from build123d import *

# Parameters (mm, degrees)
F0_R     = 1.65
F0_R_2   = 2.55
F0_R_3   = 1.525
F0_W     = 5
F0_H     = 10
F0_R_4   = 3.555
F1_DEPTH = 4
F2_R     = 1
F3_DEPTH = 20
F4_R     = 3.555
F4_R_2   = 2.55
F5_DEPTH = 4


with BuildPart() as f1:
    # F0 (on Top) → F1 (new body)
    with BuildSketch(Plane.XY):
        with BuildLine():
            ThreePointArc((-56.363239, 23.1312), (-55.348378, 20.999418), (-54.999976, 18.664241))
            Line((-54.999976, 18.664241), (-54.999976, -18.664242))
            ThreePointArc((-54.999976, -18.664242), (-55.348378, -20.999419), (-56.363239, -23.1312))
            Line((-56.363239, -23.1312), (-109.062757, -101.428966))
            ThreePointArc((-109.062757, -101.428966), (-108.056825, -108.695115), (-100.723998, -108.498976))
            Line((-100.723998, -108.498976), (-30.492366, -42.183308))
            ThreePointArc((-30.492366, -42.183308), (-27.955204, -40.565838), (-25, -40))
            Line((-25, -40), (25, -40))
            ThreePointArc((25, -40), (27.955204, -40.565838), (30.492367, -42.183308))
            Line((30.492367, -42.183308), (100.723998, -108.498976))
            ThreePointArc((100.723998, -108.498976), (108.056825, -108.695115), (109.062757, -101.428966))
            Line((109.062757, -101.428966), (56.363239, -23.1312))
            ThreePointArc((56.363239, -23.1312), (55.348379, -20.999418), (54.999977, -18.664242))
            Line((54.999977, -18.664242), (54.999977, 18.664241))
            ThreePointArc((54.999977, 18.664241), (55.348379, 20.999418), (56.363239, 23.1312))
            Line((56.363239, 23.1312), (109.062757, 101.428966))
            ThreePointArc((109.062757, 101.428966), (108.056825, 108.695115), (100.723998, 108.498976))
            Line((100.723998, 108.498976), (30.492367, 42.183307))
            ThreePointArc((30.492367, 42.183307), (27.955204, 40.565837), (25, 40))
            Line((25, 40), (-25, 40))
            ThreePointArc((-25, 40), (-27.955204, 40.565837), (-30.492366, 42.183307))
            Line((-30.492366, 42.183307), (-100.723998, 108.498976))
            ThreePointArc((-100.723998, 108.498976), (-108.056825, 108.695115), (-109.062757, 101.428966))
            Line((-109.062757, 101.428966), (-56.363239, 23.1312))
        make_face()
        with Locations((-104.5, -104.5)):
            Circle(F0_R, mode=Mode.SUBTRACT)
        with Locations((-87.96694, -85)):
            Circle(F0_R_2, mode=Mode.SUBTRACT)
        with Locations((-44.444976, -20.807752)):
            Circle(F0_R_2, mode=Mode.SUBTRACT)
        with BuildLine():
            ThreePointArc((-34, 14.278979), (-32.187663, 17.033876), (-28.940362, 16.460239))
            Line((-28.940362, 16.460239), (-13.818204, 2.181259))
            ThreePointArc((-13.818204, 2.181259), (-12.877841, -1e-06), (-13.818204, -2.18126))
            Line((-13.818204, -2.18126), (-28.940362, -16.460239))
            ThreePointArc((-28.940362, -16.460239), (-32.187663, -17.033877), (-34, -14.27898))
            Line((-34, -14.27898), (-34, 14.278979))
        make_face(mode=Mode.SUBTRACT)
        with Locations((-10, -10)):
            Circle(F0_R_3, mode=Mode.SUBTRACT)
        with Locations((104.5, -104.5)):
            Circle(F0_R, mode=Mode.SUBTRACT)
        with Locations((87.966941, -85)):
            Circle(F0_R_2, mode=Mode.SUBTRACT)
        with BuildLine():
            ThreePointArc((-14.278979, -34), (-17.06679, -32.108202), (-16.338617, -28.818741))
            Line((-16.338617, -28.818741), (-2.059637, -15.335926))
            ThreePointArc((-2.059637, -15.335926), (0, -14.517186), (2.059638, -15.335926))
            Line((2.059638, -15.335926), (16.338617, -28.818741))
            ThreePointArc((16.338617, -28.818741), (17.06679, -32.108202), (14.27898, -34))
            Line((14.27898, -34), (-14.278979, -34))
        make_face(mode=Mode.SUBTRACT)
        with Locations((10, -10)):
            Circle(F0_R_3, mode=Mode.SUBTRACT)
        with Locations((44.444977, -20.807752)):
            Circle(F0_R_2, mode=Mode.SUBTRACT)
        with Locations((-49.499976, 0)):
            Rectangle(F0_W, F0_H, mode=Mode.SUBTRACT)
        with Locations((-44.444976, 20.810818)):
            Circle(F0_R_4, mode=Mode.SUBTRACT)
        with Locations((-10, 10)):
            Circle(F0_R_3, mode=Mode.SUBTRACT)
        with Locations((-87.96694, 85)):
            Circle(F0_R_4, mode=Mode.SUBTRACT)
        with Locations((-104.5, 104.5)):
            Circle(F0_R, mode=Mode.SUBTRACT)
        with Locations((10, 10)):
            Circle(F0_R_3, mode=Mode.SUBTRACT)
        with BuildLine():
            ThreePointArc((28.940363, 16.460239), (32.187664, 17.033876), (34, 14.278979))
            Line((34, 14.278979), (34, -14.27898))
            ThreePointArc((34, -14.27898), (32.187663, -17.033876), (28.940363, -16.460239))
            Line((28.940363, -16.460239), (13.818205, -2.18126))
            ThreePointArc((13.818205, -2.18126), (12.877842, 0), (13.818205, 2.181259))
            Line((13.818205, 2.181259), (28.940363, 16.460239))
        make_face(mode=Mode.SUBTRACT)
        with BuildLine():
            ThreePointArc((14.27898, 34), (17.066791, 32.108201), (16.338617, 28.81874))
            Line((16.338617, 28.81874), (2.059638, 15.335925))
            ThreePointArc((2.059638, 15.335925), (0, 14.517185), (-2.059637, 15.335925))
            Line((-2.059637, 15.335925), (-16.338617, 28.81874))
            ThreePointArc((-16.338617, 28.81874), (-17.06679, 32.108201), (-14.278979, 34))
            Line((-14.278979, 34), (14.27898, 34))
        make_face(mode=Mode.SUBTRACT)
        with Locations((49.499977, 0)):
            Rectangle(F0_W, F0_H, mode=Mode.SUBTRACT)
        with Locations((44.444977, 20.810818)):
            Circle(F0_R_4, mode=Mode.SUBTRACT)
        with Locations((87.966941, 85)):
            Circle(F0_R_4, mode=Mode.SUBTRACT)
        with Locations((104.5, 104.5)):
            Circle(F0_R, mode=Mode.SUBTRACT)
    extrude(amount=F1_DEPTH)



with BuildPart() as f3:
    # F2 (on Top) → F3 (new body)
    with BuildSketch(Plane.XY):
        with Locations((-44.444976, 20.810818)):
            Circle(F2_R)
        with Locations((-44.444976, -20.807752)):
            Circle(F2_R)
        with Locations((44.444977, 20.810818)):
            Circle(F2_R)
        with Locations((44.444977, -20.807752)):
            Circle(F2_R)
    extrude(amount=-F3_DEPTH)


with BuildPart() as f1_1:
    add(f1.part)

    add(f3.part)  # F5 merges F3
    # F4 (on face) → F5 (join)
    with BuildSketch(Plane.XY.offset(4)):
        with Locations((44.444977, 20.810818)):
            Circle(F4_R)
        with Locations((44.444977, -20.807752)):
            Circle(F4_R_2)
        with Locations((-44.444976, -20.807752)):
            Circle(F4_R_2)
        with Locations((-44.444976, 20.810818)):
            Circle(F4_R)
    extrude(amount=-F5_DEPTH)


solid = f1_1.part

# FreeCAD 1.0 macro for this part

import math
import FreeCAD as App
import Part
import Sketcher
Q = App.Units.Quantity


def add_polygon(sketch, points):
    """Adds a closed chain of lines whose ends are joined by coincident constraints."""
    first, n = sketch.GeometryCount, len(points)
    for a, b in zip(points, points[1:] + points[:1]):
        sketch.addGeometry(Part.LineSegment(App.Vector(*a, 0), App.Vector(*b, 0)), False)
    for i in range(n):
        sketch.addConstraint(Sketcher.Constraint("Coincident", first + i, 2, first + (i + 1) % n, 1))

doc = App.newDocument("Part")
body = doc.addObject("PartDesign::Body", "Body")

sketch1 = body.newObject("Sketcher::SketchObject", "Sketch")
sketch1.AttachmentSupport = (doc.getObject("XY_Plane"), [""])
sketch1.MapMode = "FlatFace"
sketch1.addGeometry(Part.ArcOfCircle(Part.Circle(App.Vector(-62.999972, 18.664242, 0), App.Vector(0, 0, 1), 7.999996), math.radians(-0.00001), math.radians(33.943147)), False)
sketch1.addGeometry(Part.LineSegment(App.Vector(-54.999976, 18.664241, 0), App.Vector(-54.999976, -18.664242, 0)), False)
sketch1.addGeometry(Part.ArcOfCircle(Part.Circle(App.Vector(-62.999965, -18.664244, 0), App.Vector(0, 0, 1), 7.999989), math.radians(-33.943161), math.radians(0.000017)), False)
sketch1.addGeometry(Part.LineSegment(App.Vector(-56.363239, -23.1312, 0), App.Vector(-109.062757, -101.428966, 0)), False)
sketch1.addGeometry(Part.ArcOfCircle(Part.Circle(App.Vector(-104.5, -104.499999, 0), App.Vector(0, 0, 1), 5.5), math.radians(146.056873), math.radians(313.357291)), False)
sketch1.addGeometry(Part.LineSegment(App.Vector(-100.723998, -108.498976, 0), App.Vector(-30.492366, -42.183308, 0)), False)
sketch1.addGeometry(Part.ArcOfCircle(Part.Circle(App.Vector(-24.999999, -47.999999, 0), App.Vector(0, 0, 1), 7.999999), math.radians(90.000005), math.radians(133.357304)), False)
sketch1.addGeometry(Part.LineSegment(App.Vector(-25, -40, 0), App.Vector(25, -40, 0)), False)
sketch1.addGeometry(Part.ArcOfCircle(Part.Circle(App.Vector(24.999998, -48.000004, 0), App.Vector(0, 0, 1), 8.000004), math.radians(46.64271), math.radians(89.999988)), False)
sketch1.addGeometry(Part.LineSegment(App.Vector(30.492367, -42.183308, 0), App.Vector(100.723998, -108.498976, 0)), False)
sketch1.addGeometry(Part.ArcOfCircle(Part.Circle(App.Vector(104.5, -104.499999, 0), App.Vector(0, 0, 1), 5.5), math.radians(-133.357291), math.radians(33.943127)), False)
sketch1.addGeometry(Part.LineSegment(App.Vector(109.062757, -101.428966, 0), App.Vector(56.363239, -23.1312, 0)), False)
sketch1.addGeometry(Part.ArcOfCircle(Part.Circle(App.Vector(62.999982, -18.664241, 0), App.Vector(0, 0, 1), 8.000005), math.radians(-179.999993), math.radians(-146.056886)), False)
sketch1.addGeometry(Part.LineSegment(App.Vector(54.999977, -18.664242, 0), App.Vector(54.999977, 18.664241, 0)), False)
sketch1.addGeometry(Part.ArcOfCircle(Part.Circle(App.Vector(62.999982, 18.664241, 0), App.Vector(0, 0, 1), 8.000005), math.radians(146.056886), math.radians(180)), False)
sketch1.addGeometry(Part.LineSegment(App.Vector(56.363239, 23.1312, 0), App.Vector(109.062757, 101.428966, 0)), False)
sketch1.addGeometry(Part.ArcOfCircle(Part.Circle(App.Vector(104.5, 104.499999, 0), App.Vector(0, 0, 1), 5.5), math.radians(-33.943127), math.radians(133.357291)), False)
sketch1.addGeometry(Part.LineSegment(App.Vector(100.723998, 108.498976, 0), App.Vector(30.492367, 42.183307, 0)), False)
sketch1.addGeometry(Part.ArcOfCircle(Part.Circle(App.Vector(25.000002, 47.999997, 0), App.Vector(0, 0, 1), 7.999997), math.radians(-90.000016), math.radians(-46.642701)), False)
sketch1.addGeometry(Part.LineSegment(App.Vector(25, 40, 0), App.Vector(-25, 40, 0)), False)
sketch1.addGeometry(Part.ArcOfCircle(Part.Circle(App.Vector(-25.000003, 47.999992, 0), App.Vector(0, 0, 1), 7.999992), math.radians(-133.357313), math.radians(-89.999977)), False)
sketch1.addGeometry(Part.LineSegment(App.Vector(-30.492366, 42.183307, 0), App.Vector(-100.723998, 108.498976, 0)), False)
sketch1.addGeometry(Part.ArcOfCircle(Part.Circle(App.Vector(-104.5, 104.499999, 0), App.Vector(0, 0, 1), 5.5), math.radians(46.642709), math.radians(213.943127)), False)
sketch1.addGeometry(Part.LineSegment(App.Vector(-109.062757, 101.428966, 0), App.Vector(-56.363239, 23.1312, 0)), False)
sketch1.addGeometry(Part.Circle(App.Vector(-104.5, -104.5, 0), App.Vector(0, 0, 1), 1.65), False)
sketch1.addGeometry(Part.Circle(App.Vector(-87.96694, -85, 0), App.Vector(0, 0, 1), 2.55), False)
sketch1.addGeometry(Part.Circle(App.Vector(-44.444976, -20.807752, 0), App.Vector(0, 0, 1), 2.55), False)
sketch1.addGeometry(Part.LineSegment(App.Vector(-34, -14.27898, 0), App.Vector(-34, 14.278979, 0)), False)
sketch1.addGeometry(Part.ArcOfCircle(Part.Circle(App.Vector(-31, 14.278979, 0), App.Vector(0, 0, 1), 3), math.radians(46.642707), math.radians(179.999998)), False)
sketch1.addGeometry(Part.LineSegment(App.Vector(-28.940362, 16.460239, 0), App.Vector(-13.818204, 2.181259, 0)), False)
sketch1.addGeometry(Part.ArcOfCircle(Part.Circle(App.Vector(-15.87784, 0, 0), App.Vector(0, 0, 1), 2.999999), math.radians(-46.642724), math.radians(46.642724)), False)
sketch1.addGeometry(Part.LineSegment(App.Vector(-13.818204, -2.18126, 0), App.Vector(-28.940362, -16.460239, 0)), False)
sketch1.addGeometry(Part.ArcOfCircle(Part.Circle(App.Vector(-31, -14.27898, 0), App.Vector(0, 0, 1), 3), math.radians(179.999995), math.radians(313.35732)), False)
sketch1.addGeometry(Part.Circle(App.Vector(-10, -10, 0), App.Vector(0, 0, 1), 1.525), False)
sketch1.addGeometry(Part.Circle(App.Vector(104.5, -104.5, 0), App.Vector(0, 0, 1), 1.65), False)
sketch1.addGeometry(Part.Circle(App.Vector(87.966941, -85, 0), App.Vector(0, 0, 1), 2.55), False)
sketch1.addGeometry(Part.LineSegment(App.Vector(14.27898, -34, 0), App.Vector(-14.278979, -34, 0)), False)
sketch1.addGeometry(Part.ArcOfCircle(Part.Circle(App.Vector(-14.278979, -31, 0), App.Vector(0, 0, 1), 3), math.radians(133.357304), math.radians(270.000009)), False)
sketch1.addGeometry(Part.LineSegment(App.Vector(-16.338617, -28.818741, 0), App.Vector(-2.059637, -15.335926, 0)), False)
sketch1.addGeometry(Part.ArcOfCircle(Part.Circle(App.Vector(0, -17.517187, 0), App.Vector(0, 0, 1), 3.000001), math.radians(46.64272), math.radians(133.35728)), False)
sketch1.addGeometry(Part.LineSegment(App.Vector(2.059638, -15.335926, 0), App.Vector(16.338617, -28.818741, 0)), False)
sketch1.addGeometry(Part.ArcOfCircle(Part.Circle(App.Vector(14.278979, -31, 0), App.Vector(0, 0, 1), 3), math.radians(-89.99999), math.radians(46.642696)), False)
sketch1.addGeometry(Part.Circle(App.Vector(10, -10, 0), App.Vector(0, 0, 1), 1.525), False)
sketch1.addGeometry(Part.Circle(App.Vector(44.444977, -20.807752, 0), App.Vector(0, 0, 1), 2.55), False)
add_polygon(sketch1, [(-46.999976, -5), (-51.999976, -5), (-51.999976, 5), (-46.999976, 5)])
sketch1.addGeometry(Part.Circle(App.Vector(-44.444976, 20.810818, 0), App.Vector(0, 0, 1), 3.555), False)
sketch1.addGeometry(Part.Circle(App.Vector(-10, 10, 0), App.Vector(0, 0, 1), 1.525), False)
sketch1.addGeometry(Part.Circle(App.Vector(-87.96694, 85, 0), App.Vector(0, 0, 1), 3.555), False)
sketch1.addGeometry(Part.Circle(App.Vector(-104.5, 104.5, 0), App.Vector(0, 0, 1), 1.65), False)
sketch1.addGeometry(Part.Circle(App.Vector(10, 10, 0), App.Vector(0, 0, 1), 1.525), False)
sketch1.addGeometry(Part.LineSegment(App.Vector(13.818205, 2.181259, 0), App.Vector(28.940363, 16.460239, 0)), False)
sketch1.addGeometry(Part.ArcOfCircle(Part.Circle(App.Vector(31, 14.27898, 0), App.Vector(0, 0, 1), 3), math.radians(-0.000016), math.radians(133.357304)), False)
sketch1.addGeometry(Part.LineSegment(App.Vector(34, 14.278979, 0), App.Vector(34, -14.27898, 0)), False)
sketch1.addGeometry(Part.ArcOfCircle(Part.Circle(App.Vector(31, -14.278979, 0), App.Vector(0, 0, 1), 3), math.radians(-133.357292), math.radians(-0.000014)), False)
sketch1.addGeometry(Part.LineSegment(App.Vector(28.940363, -16.460239, 0), App.Vector(13.818205, -2.18126, 0)), False)
sketch1.addGeometry(Part.ArcOfCircle(Part.Circle(App.Vector(15.877841, 0, 0), App.Vector(0, 0, 1), 2.999999), math.radians(133.357276), math.radians(226.642724)), False)
sketch1.addGeometry(Part.LineSegment(App.Vector(-14.278979, 34, 0), App.Vector(14.27898, 34, 0)), False)
sketch1.addGeometry(Part.ArcOfCircle(Part.Circle(App.Vector(14.27898, 31, 0), App.Vector(0, 0, 1), 3), math.radians(-46.642712), math.radians(89.999999)), False)
sketch1.addGeometry(Part.LineSegment(App.Vector(16.338617, 28.81874, 0), App.Vector(2.059638, 15.335925, 0)), False)
sketch1.addGeometry(Part.ArcOfCircle(Part.Circle(App.Vector(0, 17.517186, 0), App.Vector(0, 0, 1), 3.000001), math.radians(-133.35728), math.radians(-46.64272)), False)
sketch1.addGeometry(Part.LineSegment(App.Vector(-2.059637, 15.335925, 0), App.Vector(-16.338617, 28.81874, 0)), False)
sketch1.addGeometry(Part.ArcOfCircle(Part.Circle(App.Vector(-14.278979, 30.999999, 0), App.Vector(0, 0, 1), 3.000001), math.radians(90.000008), math.radians(226.642685)), False)
add_polygon(sketch1, [(51.999977, -5), (46.999977, -5), (46.999977, 5), (51.999977, 5)])
sketch1.addGeometry(Part.Circle(App.Vector(44.444977, 20.810818, 0), App.Vector(0, 0, 1), 3.555), False)
sketch1.addGeometry(Part.Circle(App.Vector(87.966941, 85, 0), App.Vector(0, 0, 1), 3.555), False)
sketch1.addGeometry(Part.Circle(App.Vector(104.5, 104.5, 0), App.Vector(0, 0, 1), 1.65), False)
sketch1.addConstraint([
    Sketcher.Constraint("Tangent", 0, 1, 1, 1),
    Sketcher.Constraint("Tangent", 1, 2, 2, 2),
    Sketcher.Constraint("Tangent", 2, 1, 3, 1),
    Sketcher.Constraint("Tangent", 3, 2, 4, 1),
    Sketcher.Constraint("Tangent", 4, 2, 5, 1),
    Sketcher.Constraint("Tangent", 5, 2, 6, 2),
    Sketcher.Constraint("Tangent", 6, 1, 7, 1),
    Sketcher.Constraint("Tangent", 7, 2, 8, 2),
    Sketcher.Constraint("Tangent", 8, 1, 9, 1),
    Sketcher.Constraint("Tangent", 9, 2, 10, 1),
    Sketcher.Constraint("Tangent", 10, 2, 11, 1),
    Sketcher.Constraint("Tangent", 11, 2, 12, 2),
    Sketcher.Constraint("Tangent", 12, 1, 13, 1),
    Sketcher.Constraint("Tangent", 13, 2, 14, 2),
    Sketcher.Constraint("Tangent", 14, 1, 15, 1),
    Sketcher.Constraint("Tangent", 15, 2, 16, 1),
    Sketcher.Constraint("Tangent", 16, 2, 17, 1),
    Sketcher.Constraint("Tangent", 17, 2, 18, 2),
    Sketcher.Constraint("Tangent", 18, 1, 19, 1),
    Sketcher.Constraint("Tangent", 19, 2, 20, 2),
    Sketcher.Constraint("Tangent", 20, 1, 21, 1),
    Sketcher.Constraint("Tangent", 21, 2, 22, 1),
    Sketcher.Constraint("Tangent", 22, 2, 23, 1),
    Sketcher.Constraint("Tangent", 23, 2, 0, 2),
    Sketcher.Constraint("Tangent", 27, 2, 28, 2),
    Sketcher.Constraint("Tangent", 28, 1, 29, 1),
    Sketcher.Constraint("Tangent", 29, 2, 30, 2),
    Sketcher.Constraint("Tangent", 30, 1, 31, 1),
    Sketcher.Constraint("Tangent", 31, 2, 32, 2),
    Sketcher.Constraint("Tangent", 32, 1, 27, 1),
    Sketcher.Constraint("Tangent", 36, 2, 37, 2),
    Sketcher.Constraint("Tangent", 37, 1, 38, 1),
    Sketcher.Constraint("Tangent", 38, 2, 39, 2),
    Sketcher.Constraint("Tangent", 39, 1, 40, 1),
    Sketcher.Constraint("Tangent", 40, 2, 41, 2),
    Sketcher.Constraint("Tangent", 41, 1, 36, 1),
    Sketcher.Constraint("Tangent", 53, 2, 54, 2),
    Sketcher.Constraint("Tangent", 54, 1, 55, 1),
    Sketcher.Constraint("Tangent", 55, 2, 56, 2),
    Sketcher.Constraint("Tangent", 56, 1, 57, 1),
    Sketcher.Constraint("Tangent", 57, 2, 58, 2),
    Sketcher.Constraint("Tangent", 58, 1, 53, 1),
    Sketcher.Constraint("Tangent", 59, 2, 60, 2),
    Sketcher.Constraint("Tangent", 60, 1, 61, 1),
    Sketcher.Constraint("Tangent", 61, 2, 62, 2),
    Sketcher.Constraint("Tangent", 62, 1, 63, 1),
    Sketcher.Constraint("Tangent", 63, 2, 64, 2),
    Sketcher.Constraint("Tangent", 64, 1, 59, 1),
    Sketcher.Constraint("Vertical", 1),
    Sketcher.Constraint("Horizontal", 7),
    Sketcher.Constraint("Vertical", 13),
    Sketcher.Constraint("Horizontal", 19),
    Sketcher.Constraint("Vertical", 27),
    Sketcher.Constraint("Horizontal", 36),
    Sketcher.Constraint("Horizontal", 44),
    Sketcher.Constraint("Vertical", 45),
    Sketcher.Constraint("Horizontal", 46),
    Sketcher.Constraint("Vertical", 47),
    Sketcher.Constraint("Vertical", 55),
    Sketcher.Constraint("Horizontal", 59),
    Sketcher.Constraint("Horizontal", 65),
    Sketcher.Constraint("Vertical", 66),
    Sketcher.Constraint("Horizontal", 67),
    Sketcher.Constraint("Vertical", 68),
    Sketcher.Constraint("Coincident", 24, 3, 4, 3),
    Sketcher.Constraint("Coincident", 34, 3, 10, 3),
    Sketcher.Constraint("Coincident", 51, 3, 22, 3),
    Sketcher.Constraint("Coincident", 71, 3, 16, 3),
    Sketcher.Constraint("Equal", 4, 10),
    Sketcher.Constraint("Equal", 8, 12),
    Sketcher.Constraint("Equal", 12, 14),
    Sketcher.Constraint("Equal", 10, 16),
    Sketcher.Constraint("Equal", 0, 18),
    Sketcher.Constraint("Equal", 16, 22),
    Sketcher.Constraint("Equal", 25, 26),
    Sketcher.Constraint("Equal", 28, 30),
    Sketcher.Constraint("Equal", 30, 32),
    Sketcher.Constraint("Equal", 24, 34),
    Sketcher.Constraint("Equal", 26, 35),
    Sketcher.Constraint("Equal", 32, 37),
    Sketcher.Constraint("Equal", 37, 39),
    Sketcher.Constraint("Equal", 39, 41),
    Sketcher.Constraint("Equal", 33, 42),
    Sketcher.Constraint("Equal", 35, 43),
    Sketcher.Constraint("Equal", 42, 49),
    Sketcher.Constraint("Equal", 48, 50),
    Sketcher.Constraint("Equal", 34, 51),
    Sketcher.Constraint("Equal", 49, 52),
    Sketcher.Constraint("Equal", 41, 54),
    Sketcher.Constraint("Equal", 54, 56),
    Sketcher.Constraint("Equal", 56, 58),
    Sketcher.Constraint("Equal", 58, 60),
    Sketcher.Constraint("Equal", 60, 62),
    Sketcher.Constraint("Equal", 62, 64),
    Sketcher.Constraint("Equal", 50, 69),
    Sketcher.Constraint("Equal", 69, 70),
    Sketcher.Constraint("Equal", 51, 71),
    Sketcher.Constraint("Symmetric", 4, 3, 16, 3, -1, 1),
    Sketcher.Constraint("Symmetric", 6, 3, 18, 3, -1, 1),
    Sketcher.Constraint("Symmetric", 10, 3, 22, 3, -1, 1),
    Sketcher.Constraint("Symmetric", 42, 3, 49, 3, -1, 1),
    Sketcher.Constraint("Symmetric", 35, 3, 50, 3, -1, 1),
    Sketcher.Constraint("Symmetric", 33, 3, 52, 3, -1, 1),
    Sketcher.Constraint("Symmetric", 32, 3, 54, 3, -1, 1),
    Sketcher.Constraint("Symmetric", 30, 3, 58, 3, -1, 1),
    Sketcher.Constraint("Symmetric", 37, 3, 60, 3, -1, 1),
    Sketcher.Constraint("Symmetric", 39, 3, 62, 3, -1, 1),
    Sketcher.Constraint("Symmetric", 25, 3, 70, 3, -1, 1),
    Sketcher.Constraint("Symmetric", 0, 1, 12, 1, -1, 1),
    Sketcher.Constraint("Symmetric", 2, 1, 14, 1, -1, 1),
    Sketcher.Constraint("Symmetric", 7, 2, 19, 2, -1, 1),
    Sketcher.Constraint("Symmetric", 46, 2, 65, 2, -1, 1),
    Sketcher.Constraint("Symmetric", 44, 2, 67, 2, -1, 1),
    Sketcher.Constraint("Symmetric", 6, 3, 8, 3, -2),
    Sketcher.Constraint("Symmetric", 4, 3, 10, 3, -2),
    Sketcher.Constraint("Symmetric", 25, 3, 35, 3, -2),
    Sketcher.Constraint("Symmetric", 33, 3, 42, 3, -2),
    Sketcher.Constraint("Symmetric", 26, 3, 43, 3, -2),
    Sketcher.Constraint("Symmetric", 48, 3, 69, 3, -2),
    Sketcher.Constraint("Symmetric", 38, 2, 39, 1, -2),
    Sketcher.Constraint("Symmetric", 28, 1, 53, 2, -2),
    Sketcher.Constraint("Parallel", 9, 21),
    Sketcher.Constraint("Parallel", 21, 29),
    Sketcher.Constraint("Parallel", 31, 38),
    Sketcher.Constraint("Parallel", 40, 57),
    Sketcher.Constraint("Parallel", 57, 63),
    Sketcher.Constraint("Horizontal", 0, 3, 14, 3),
    Sketcher.Constraint("Horizontal", 47, 2, 65, 2),
    Sketcher.Constraint("Vertical", 26, 3, 48, 3),
    Sketcher.Constraint("Equal", 59, 27),
    Sketcher.Constraint("Radius", 6, Q("7.999999 mm")),
    Sketcher.Constraint("Radius", 28, Q("3 mm")),
    Sketcher.Constraint("Diameter", 24, Q("3.3 mm")),
    Sketcher.Constraint("Diameter", 25, Q("5.1 mm")),
    Sketcher.Constraint("Radius", 4, Q("5.5 mm")),
    Sketcher.Constraint("Diameter", 33, Q("3.05 mm")),
    Sketcher.Constraint("Diameter", 48, Q("7.11 mm")),
    Sketcher.Constraint("DistanceX", 7, 1, 7, 2, Q("50 mm")),
    Sketcher.Constraint("DistanceX", 44, 2, 44, 1, Q("5 mm")),
    Sketcher.Constraint("DistanceY", 45, 1, 45, 2, Q("10 mm")),
    Sketcher.Constraint("DistanceY", 6, 3, -1, 1, Q("47.999999 mm")),
    Sketcher.Constraint("DistanceY", 25, 3, -1, 1, Q("85 mm")),
    Sketcher.Constraint("DistanceX", 28, 3, -1, 1, Q("31 mm")),
    Sketcher.Constraint("DistanceX", 33, 3, -1, 1, Q("10 mm")),
    Sketcher.Constraint("DistanceY", 33, 3, -1, 1, Q("10 mm")),
    Sketcher.Constraint("DistanceY", 37, 3, -1, 1, Q("31 mm")),
    Sketcher.Constraint("DistanceX", 4, 3, -1, 1, Q("104.5 mm")),
    Sketcher.Constraint("DistanceY", 4, 3, -1, 1, Q("104.499999 mm")),
    Sketcher.Constraint("DistanceX", 36, 2, 36, 1, Q("28.557959 mm")),
    Sketcher.Constraint("DistanceY", 2, 1, -1, 1, Q("23.1312 mm")),
    Sketcher.Constraint("DistanceY", 1, 2, 1, 1, Q("37.328483 mm")),
    Sketcher.Constraint("DistanceX", 25, 3, -1, 1, Q("87.96694 mm")),
    Sketcher.Constraint("DistanceY", -1, 1, 48, 3, Q("20.810818 mm")),
    Sketcher.Constraint("DistanceX", 26, 3, -1, 1, Q("44.444976 mm")),
    Sketcher.Constraint("DistanceY", 26, 3, -1, 1, Q("20.807752 mm")),
    Sketcher.Constraint("DistanceX", 44, 2, -1, 1, Q("51.999976 mm")),
])
pad1 = body.newObject("PartDesign::Pad", "Pad")
pad1.Profile = sketch1
pad1.Length = 4
body2 = doc.addObject("PartDesign::Body", "Body001")
body2.AllowCompound = True

sketch2 = body2.newObject("Sketcher::SketchObject", "Sketch001")
sketch2.AttachmentSupport = (doc.getObject("XY_Plane001"), [""])
sketch2.MapMode = "FlatFace"
sketch2.addGeometry([
    Part.Circle(App.Vector(-44.444976, 20.810818, 0), App.Vector(0, 0, 1), 1),
    Part.Circle(App.Vector(-44.444976, -20.807752, 0), App.Vector(0, 0, 1), 1),
    Part.Circle(App.Vector(44.444977, 20.810818, 0), App.Vector(0, 0, 1), 1),
    Part.Circle(App.Vector(44.444977, -20.807752, 0), App.Vector(0, 0, 1), 1),
], False)
sketch2.addConstraint([
    Sketcher.Constraint("Equal", 0, 1),
    Sketcher.Constraint("Equal", 1, 2),
    Sketcher.Constraint("Equal", 2, 3),
    Sketcher.Constraint("Symmetric", 0, 3, 2, 3, -2),
    Sketcher.Constraint("Symmetric", 1, 3, 3, 3, -2),
    Sketcher.Constraint("Vertical", 0, 3, 1, 3),
    Sketcher.Constraint("Diameter", 0, Q("2 mm")),
    Sketcher.Constraint("DistanceY", -1, 1, 0, 3, Q("20.810818 mm")),
    Sketcher.Constraint("DistanceY", 1, 3, 0, 3, Q("41.61857 mm")),
    Sketcher.Constraint("DistanceX", 0, 3, -1, 1, Q("44.444976 mm")),
])
pad2 = body2.newObject("PartDesign::Pad", "Pad001")
pad2.Profile = sketch2
pad2.Length = 20
pad2.Reversed = True
body.AllowCompound = True
doc.recompute()

boolean = body.newObject("PartDesign::Boolean", "Boolean")
boolean.Type = "Fuse"
boolean.addObjects([body2])

sketch3 = body.newObject("Sketcher::SketchObject", "Sketch002")
sketch3.AttachmentSupport = (doc.getObject("XY_Plane"), [""])
sketch3.MapMode = "FlatFace"
sketch3.AttachmentOffset = App.Placement(App.Vector(0, 0, 4), App.Rotation())
sketch3.addGeometry([
    Part.Circle(App.Vector(44.444977, 20.810818, 0), App.Vector(0, 0, 1), 3.555),
    Part.Circle(App.Vector(44.444977, -20.807752, 0), App.Vector(0, 0, 1), 2.55),
    Part.Circle(App.Vector(-44.444976, -20.807752, 0), App.Vector(0, 0, 1), 2.55),
    Part.Circle(App.Vector(-44.444976, 20.810818, 0), App.Vector(0, 0, 1), 3.555),
], False)
sketch3.addConstraint([
    Sketcher.Constraint("Equal", 1, 2),
    Sketcher.Constraint("Equal", 0, 3),
    Sketcher.Constraint("Symmetric", 1, 3, 2, 3, -2),
    Sketcher.Constraint("Symmetric", 0, 3, 3, 3, -2),
    Sketcher.Constraint("Vertical", 0, 3, 1, 3),
    Sketcher.Constraint("Diameter", 1, Q("5.1 mm")),
    Sketcher.Constraint("Diameter", 0, Q("7.11 mm")),
    Sketcher.Constraint("DistanceY", -1, 1, 0, 3, Q("20.810818 mm")),
    Sketcher.Constraint("DistanceY", 1, 3, 0, 3, Q("41.61857 mm")),
    Sketcher.Constraint("DistanceX", -1, 1, 0, 3, Q("44.444977 mm")),
])
pad3 = body.newObject("PartDesign::Pad", "Pad002")
pad3.Profile = sketch3
pad3.Length = 4
pad3.Reversed = True

doc.recompute()
